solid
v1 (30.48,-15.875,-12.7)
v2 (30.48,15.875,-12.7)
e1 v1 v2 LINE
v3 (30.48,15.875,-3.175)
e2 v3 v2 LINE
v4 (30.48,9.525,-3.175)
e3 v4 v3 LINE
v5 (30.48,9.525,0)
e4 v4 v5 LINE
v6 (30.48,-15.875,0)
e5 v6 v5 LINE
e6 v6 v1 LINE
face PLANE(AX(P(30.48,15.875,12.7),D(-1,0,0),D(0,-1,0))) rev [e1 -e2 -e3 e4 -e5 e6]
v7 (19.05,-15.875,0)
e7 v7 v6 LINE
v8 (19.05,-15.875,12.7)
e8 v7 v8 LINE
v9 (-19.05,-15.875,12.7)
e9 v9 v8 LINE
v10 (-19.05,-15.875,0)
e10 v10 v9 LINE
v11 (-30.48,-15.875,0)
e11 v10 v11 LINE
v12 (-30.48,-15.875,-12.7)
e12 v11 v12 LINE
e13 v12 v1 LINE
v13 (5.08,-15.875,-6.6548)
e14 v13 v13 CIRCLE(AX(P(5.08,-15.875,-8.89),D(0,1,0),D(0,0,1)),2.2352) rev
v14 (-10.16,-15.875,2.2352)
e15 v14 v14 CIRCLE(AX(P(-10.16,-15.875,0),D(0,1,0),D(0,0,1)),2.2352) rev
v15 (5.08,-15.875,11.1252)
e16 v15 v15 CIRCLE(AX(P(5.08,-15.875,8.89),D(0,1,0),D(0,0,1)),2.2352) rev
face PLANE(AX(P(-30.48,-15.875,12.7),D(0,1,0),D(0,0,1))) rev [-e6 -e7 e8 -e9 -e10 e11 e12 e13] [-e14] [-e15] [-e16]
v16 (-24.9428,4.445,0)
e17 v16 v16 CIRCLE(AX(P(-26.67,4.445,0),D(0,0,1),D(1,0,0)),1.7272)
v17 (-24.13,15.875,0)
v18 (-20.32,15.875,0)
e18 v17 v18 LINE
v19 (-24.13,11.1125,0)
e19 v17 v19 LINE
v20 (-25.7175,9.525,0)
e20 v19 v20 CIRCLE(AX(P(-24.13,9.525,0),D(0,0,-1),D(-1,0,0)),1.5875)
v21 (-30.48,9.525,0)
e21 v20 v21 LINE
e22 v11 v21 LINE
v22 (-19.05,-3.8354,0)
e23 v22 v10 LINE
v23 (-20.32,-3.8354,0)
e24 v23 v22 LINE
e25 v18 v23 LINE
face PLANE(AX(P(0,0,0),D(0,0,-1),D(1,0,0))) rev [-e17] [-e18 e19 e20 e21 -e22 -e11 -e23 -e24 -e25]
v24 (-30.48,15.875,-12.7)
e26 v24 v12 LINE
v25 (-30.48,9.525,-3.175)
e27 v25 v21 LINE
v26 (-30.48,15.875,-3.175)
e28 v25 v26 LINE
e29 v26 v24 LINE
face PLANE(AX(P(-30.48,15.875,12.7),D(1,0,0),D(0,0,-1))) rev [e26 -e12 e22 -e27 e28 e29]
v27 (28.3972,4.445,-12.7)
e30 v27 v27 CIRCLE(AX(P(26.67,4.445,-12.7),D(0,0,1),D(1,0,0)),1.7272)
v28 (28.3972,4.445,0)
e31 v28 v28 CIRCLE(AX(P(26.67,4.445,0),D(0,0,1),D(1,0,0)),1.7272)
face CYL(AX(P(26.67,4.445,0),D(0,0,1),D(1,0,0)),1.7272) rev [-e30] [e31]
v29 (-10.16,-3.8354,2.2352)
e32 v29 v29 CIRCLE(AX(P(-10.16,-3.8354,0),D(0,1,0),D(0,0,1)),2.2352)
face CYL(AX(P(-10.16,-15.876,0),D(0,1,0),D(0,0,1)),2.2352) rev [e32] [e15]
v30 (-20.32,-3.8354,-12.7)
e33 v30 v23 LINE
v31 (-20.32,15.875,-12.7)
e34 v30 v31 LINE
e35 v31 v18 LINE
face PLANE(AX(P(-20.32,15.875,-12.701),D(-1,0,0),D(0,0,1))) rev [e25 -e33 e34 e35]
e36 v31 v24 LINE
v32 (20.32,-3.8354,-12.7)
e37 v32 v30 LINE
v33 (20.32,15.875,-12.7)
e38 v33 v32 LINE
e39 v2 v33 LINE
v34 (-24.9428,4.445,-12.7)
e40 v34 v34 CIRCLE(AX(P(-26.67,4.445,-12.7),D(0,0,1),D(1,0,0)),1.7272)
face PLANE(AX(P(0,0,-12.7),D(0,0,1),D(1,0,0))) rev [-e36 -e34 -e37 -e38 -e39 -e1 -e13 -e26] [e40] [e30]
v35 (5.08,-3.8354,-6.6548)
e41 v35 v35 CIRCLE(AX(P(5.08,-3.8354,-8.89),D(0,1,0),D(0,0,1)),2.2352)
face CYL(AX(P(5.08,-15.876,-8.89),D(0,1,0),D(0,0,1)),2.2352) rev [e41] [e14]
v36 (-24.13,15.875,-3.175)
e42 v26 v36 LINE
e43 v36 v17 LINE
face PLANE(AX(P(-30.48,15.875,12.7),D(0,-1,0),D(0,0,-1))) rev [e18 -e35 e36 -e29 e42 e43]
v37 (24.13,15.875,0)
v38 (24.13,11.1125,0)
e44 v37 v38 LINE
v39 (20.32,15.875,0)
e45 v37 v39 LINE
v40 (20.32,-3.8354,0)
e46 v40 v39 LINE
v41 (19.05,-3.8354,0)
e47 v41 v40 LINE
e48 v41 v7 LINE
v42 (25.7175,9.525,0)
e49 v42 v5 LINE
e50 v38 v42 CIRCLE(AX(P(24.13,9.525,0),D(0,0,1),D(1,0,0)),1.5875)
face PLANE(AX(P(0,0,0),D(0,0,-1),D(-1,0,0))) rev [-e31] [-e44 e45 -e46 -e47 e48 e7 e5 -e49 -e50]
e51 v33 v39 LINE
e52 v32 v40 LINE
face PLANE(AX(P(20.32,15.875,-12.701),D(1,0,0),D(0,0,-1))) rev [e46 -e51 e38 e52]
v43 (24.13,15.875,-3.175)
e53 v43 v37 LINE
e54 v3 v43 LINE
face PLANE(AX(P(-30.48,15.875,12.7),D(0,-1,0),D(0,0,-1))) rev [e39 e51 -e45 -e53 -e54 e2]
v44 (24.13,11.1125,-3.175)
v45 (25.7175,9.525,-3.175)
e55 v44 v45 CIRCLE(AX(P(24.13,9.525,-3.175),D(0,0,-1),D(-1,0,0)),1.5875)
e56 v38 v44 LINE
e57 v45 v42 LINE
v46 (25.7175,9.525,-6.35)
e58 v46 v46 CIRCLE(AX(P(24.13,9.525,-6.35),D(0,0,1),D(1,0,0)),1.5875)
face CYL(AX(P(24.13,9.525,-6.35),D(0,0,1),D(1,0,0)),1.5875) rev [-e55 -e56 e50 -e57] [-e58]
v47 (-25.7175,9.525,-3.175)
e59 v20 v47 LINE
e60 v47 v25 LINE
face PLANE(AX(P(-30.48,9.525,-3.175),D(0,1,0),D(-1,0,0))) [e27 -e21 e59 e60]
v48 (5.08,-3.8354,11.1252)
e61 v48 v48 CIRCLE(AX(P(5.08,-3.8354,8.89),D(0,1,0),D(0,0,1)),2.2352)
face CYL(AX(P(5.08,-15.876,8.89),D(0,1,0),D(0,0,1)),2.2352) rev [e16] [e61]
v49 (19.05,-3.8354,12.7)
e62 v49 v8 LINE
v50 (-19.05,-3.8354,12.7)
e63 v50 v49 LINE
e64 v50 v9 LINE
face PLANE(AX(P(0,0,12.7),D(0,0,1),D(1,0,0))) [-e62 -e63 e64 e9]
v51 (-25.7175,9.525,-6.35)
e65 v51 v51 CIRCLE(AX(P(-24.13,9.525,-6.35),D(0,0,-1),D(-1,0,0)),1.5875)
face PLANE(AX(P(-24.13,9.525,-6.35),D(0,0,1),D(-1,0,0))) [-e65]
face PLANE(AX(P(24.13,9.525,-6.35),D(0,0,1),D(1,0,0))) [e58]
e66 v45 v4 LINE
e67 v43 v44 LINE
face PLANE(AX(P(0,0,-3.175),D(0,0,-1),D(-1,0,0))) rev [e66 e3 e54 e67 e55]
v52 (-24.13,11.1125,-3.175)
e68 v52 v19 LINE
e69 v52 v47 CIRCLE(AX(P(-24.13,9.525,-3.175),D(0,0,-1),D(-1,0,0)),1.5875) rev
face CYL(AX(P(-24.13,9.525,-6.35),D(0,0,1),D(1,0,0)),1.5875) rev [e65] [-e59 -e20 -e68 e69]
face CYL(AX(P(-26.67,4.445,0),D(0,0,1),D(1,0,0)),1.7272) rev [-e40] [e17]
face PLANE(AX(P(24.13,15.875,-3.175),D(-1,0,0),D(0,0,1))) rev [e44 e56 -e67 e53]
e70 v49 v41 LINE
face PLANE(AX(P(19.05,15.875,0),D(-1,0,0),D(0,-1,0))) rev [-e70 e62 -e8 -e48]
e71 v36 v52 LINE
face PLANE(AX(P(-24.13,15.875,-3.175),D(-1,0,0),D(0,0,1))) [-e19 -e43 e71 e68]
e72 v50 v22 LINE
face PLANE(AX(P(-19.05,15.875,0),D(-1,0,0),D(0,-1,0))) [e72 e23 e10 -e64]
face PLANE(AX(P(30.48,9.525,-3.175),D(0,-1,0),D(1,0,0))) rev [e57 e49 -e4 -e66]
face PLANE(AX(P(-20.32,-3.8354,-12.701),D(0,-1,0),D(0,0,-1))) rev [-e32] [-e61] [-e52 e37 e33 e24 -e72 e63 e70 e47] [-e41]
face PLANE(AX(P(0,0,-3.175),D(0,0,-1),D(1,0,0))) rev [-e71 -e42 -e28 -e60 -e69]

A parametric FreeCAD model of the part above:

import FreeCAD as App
import Part
import Sketcher
from FreeCAD import Vector
Q = App.Units.Quantity

doc = App.newDocument("Part")
params = doc.addObject("Spreadsheet::Sheet", "Params")
for row, (alias, value) in enumerate([
    ("sketch1_width", "2.4 in"),
    ("sketch1_height", "1.25 in"),
    ("pad1_length", "1 in"),
    ("sketch2_width", "1.6 in"),
    ("sketch2_height", "0.776 in"),
    ("sketch3_width", "0.45 in"),
    ("sketch3_height", "1.25 in"),
    ("pocket2_length", "0.5 in"),
    ("sketch4_width", "0.25 in"),
    ("pocket3_length", "0.125 in"),
    ("sketch5_diameter", "0.125 in"),
    ("pocket4_length", "0.25 in"),
    ("sketch6_diameter", "0.136 in"),
    ("hole_diameter", "0.136 in"),
    ("hole_depth", "12.701 mm"),
    ("sketch7_diameter", "0.176 in"),
    ("sketch8_diameter", "0.176 in"),
    ("sketch9_diameter", "0.176 in"),
], start=1):
    params.set(f"A{row}", alias)
    params.set(f"B{row}", "=" + value)
    params.setAlias(f"B{row}", alias)

body = doc.addObject("PartDesign::Body", "Body")

# Sketch on XY plane
sketch1 = body.newObject("Sketcher::SketchObject", "Sketch")
sketch1.AttachmentSupport = (doc.getObject("XY_Plane"), [""])
sketch1.MapMode = "FlatFace"
sketch1.addGeometry(Part.LineSegment(Vector(-30, 16, 0), Vector(-30, -16, 0)), False)
sketch1.addGeometry(Part.LineSegment(Vector(-30, -16, 0), Vector(30, -16, 0)), False)
sketch1.addGeometry(Part.LineSegment(Vector(30, -16, 0), Vector(30, 16, 0)), False)
sketch1.addGeometry(Part.LineSegment(Vector(30, 16, 0), Vector(-30, 16, 0)), False)
sketch1.addConstraint(Sketcher.Constraint("Coincident", 0, 2, 1, 1))
sketch1.addConstraint(Sketcher.Constraint("Coincident", 1, 2, 2, 1))
sketch1.addConstraint(Sketcher.Constraint("Coincident", 2, 2, 3, 1))
sketch1.addConstraint(Sketcher.Constraint("Coincident", 3, 2, 0, 1))
sketch1.addConstraint(Sketcher.Constraint("Vertical", 0))
sketch1.addConstraint(Sketcher.Constraint("Horizontal", 1))
sketch1.addConstraint(Sketcher.Constraint("Vertical", 2))
sketch1.addConstraint(Sketcher.Constraint("Horizontal", 3))
sketch1.addConstraint(Sketcher.Constraint("Symmetric", 0, 2, 2, 2, -1, 1))
sketch1.addConstraint(Sketcher.Constraint("DistanceX", 1, 1, 1, 2, Q("2.4 in")))
sketch1.addConstraint(Sketcher.Constraint("DistanceY", 0, 2, 0, 1, Q("1.25 in")))
sketch1.setExpression("Constraints[9]", "Params.sketch1_width")
sketch1.setExpression("Constraints[10]", "Params.sketch1_height")
pad1 = body.newObject("PartDesign::Pad", "Pad")
pad1.Profile = sketch1
pad1.setExpression("Length", "Params.pad1_length")
pad1.Midplane = True

# Sketch on XY plane
sketch2 = body.newObject("Sketcher::SketchObject", "Sketch001")
sketch2.AttachmentSupport = (doc.getObject("XY_Plane"), [""])
sketch2.MapMode = "FlatFace"
sketch2.AttachmentOffset = App.Placement(Vector(0, 0, 0.5 * 25.4), App.Rotation())
sketch2.addGeometry(Part.LineSegment(Vector(-20, 16, 0), Vector(-20, -4, 0)), False)
sketch2.addGeometry(Part.LineSegment(Vector(-20, -4, 0), Vector(20, -4, 0)), False)
sketch2.addGeometry(Part.LineSegment(Vector(20, -4, 0), Vector(20, 16, 0)), False)
sketch2.addGeometry(Part.LineSegment(Vector(20, 16, 0), Vector(-20, 16, 0)), False)
sketch2.addConstraint(Sketcher.Constraint("Coincident", 0, 2, 1, 1))
sketch2.addConstraint(Sketcher.Constraint("Coincident", 1, 2, 2, 1))
sketch2.addConstraint(Sketcher.Constraint("Coincident", 2, 2, 3, 1))
sketch2.addConstraint(Sketcher.Constraint("Coincident", 3, 2, 0, 1))
sketch2.addConstraint(Sketcher.Constraint("Vertical", 0))
sketch2.addConstraint(Sketcher.Constraint("Horizontal", 1))
sketch2.addConstraint(Sketcher.Constraint("Vertical", 2))
sketch2.addConstraint(Sketcher.Constraint("Horizontal", 3))
sketch2.addConstraint(Sketcher.Constraint("DistanceX", 1, 1, 1, 2, Q("1.6 in")))
sketch2.addConstraint(Sketcher.Constraint("DistanceX", 0, 2, -1, 1, Q("0.8 in")))
sketch2.addConstraint(Sketcher.Constraint("DistanceY", 0, 2, 0, 1, Q("0.776 in")))
sketch2.addConstraint(Sketcher.Constraint("DistanceY", 0, 2, -1, 1, Q("0.151 in")))
sketch2.setExpression("Constraints[8]", "Params.sketch2_width")
sketch2.setExpression("Constraints[10]", "Params.sketch2_height")
pocket1 = body.newObject("PartDesign::Pocket", "Pocket")
pocket1.Profile = sketch2
pocket1.Type = "UpToFirst"

# Sketch on XY plane
sketch3 = body.newObject("Sketcher::SketchObject", "Sketch002")
sketch3.AttachmentSupport = (doc.getObject("XY_Plane"), [""])
sketch3.MapMode = "FlatFace"
sketch3.AttachmentOffset = App.Placement(Vector(0, 0, 0.5 * 25.4), App.Rotation())
sketch3.addGeometry(Part.LineSegment(Vector(19, 16, 0), Vector(19, -16, 0)), False)
sketch3.addGeometry(Part.LineSegment(Vector(19, -16, 0), Vector(30, -16, 0)), False)
sketch3.addGeometry(Part.LineSegment(Vector(30, -16, 0), Vector(30, 16, 0)), False)
sketch3.addGeometry(Part.LineSegment(Vector(30, 16, 0), Vector(19, 16, 0)), False)
sketch3.addConstraint(Sketcher.Constraint("Coincident", 0, 2, 1, 1))
sketch3.addConstraint(Sketcher.Constraint("Coincident", 1, 2, 2, 1))
sketch3.addConstraint(Sketcher.Constraint("Coincident", 2, 2, 3, 1))
sketch3.addConstraint(Sketcher.Constraint("Coincident", 3, 2, 0, 1))
sketch3.addConstraint(Sketcher.Constraint("Vertical", 0))
sketch3.addConstraint(Sketcher.Constraint("Horizontal", 1))
sketch3.addConstraint(Sketcher.Constraint("Vertical", 2))
sketch3.addConstraint(Sketcher.Constraint("Horizontal", 3))
sketch3.addConstraint(Sketcher.Constraint("DistanceX", 1, 1, 1, 2, Q("0.45 in")))
sketch3.addConstraint(Sketcher.Constraint("DistanceY", 0, 2, 0, 1, Q("1.25 in")))
sketch3.addConstraint(Sketcher.Constraint("DistanceX", -1, 1, 1, 2, Q("1.2 in")))
sketch3.addConstraint(Sketcher.Constraint("DistanceY", 0, 2, -1, 1, Q("0.625 in")))
sketch3.setExpression("Constraints[8]", "Params.sketch3_width")
sketch3.setExpression("Constraints[9]", "Params.sketch3_height")
pocket2 = body.newObject("PartDesign::Pocket", "Pocket001")
pocket2.Profile = sketch3
pocket2.setExpression("Length", "Params.pocket2_length")
doc.recompute()

mirrored = body.newObject("PartDesign::Mirrored", "Mirrored")
mirrored.Originals = [pocket2]
mirrored.MirrorPlane = (doc.getObject("YZ_Plane"), [""])
body.Tip = mirrored

# Sketch on XY plane
sketch4 = body.newObject("Sketcher::SketchObject", "Sketch003")
sketch4.AttachmentSupport = (doc.getObject("XY_Plane"), [""])
sketch4.MapMode = "FlatFace"
sketch4.addGeometry(Part.LineSegment(Vector(24, 16, 0), Vector(24, 10, 0)), False)
sketch4.addGeometry(Part.LineSegment(Vector(24, 10, 0), Vector(30, 10, 0)), False)
sketch4.addGeometry(Part.LineSegment(Vector(30, 10, 0), Vector(30, 16, 0)), False)
sketch4.addGeometry(Part.LineSegment(Vector(30, 16, 0), Vector(24, 16, 0)), False)
sketch4.addConstraint(Sketcher.Constraint("Coincident", 0, 2, 1, 1))
sketch4.addConstraint(Sketcher.Constraint("Coincident", 1, 2, 2, 1))
sketch4.addConstraint(Sketcher.Constraint("Coincident", 2, 2, 3, 1))
sketch4.addConstraint(Sketcher.Constraint("Coincident", 3, 2, 0, 1))
sketch4.addConstraint(Sketcher.Constraint("Vertical", 0))
sketch4.addConstraint(Sketcher.Constraint("Horizontal", 1))
sketch4.addConstraint(Sketcher.Constraint("Vertical", 2))
sketch4.addConstraint(Sketcher.Constraint("Horizontal", 3))
sketch4.addConstraint(Sketcher.Constraint("Equal", 3, 0))
sketch4.addConstraint(Sketcher.Constraint("DistanceX", 1, 1, 1, 2, Q("0.25 in")))
sketch4.addConstraint(Sketcher.Constraint("DistanceX", -1, 1, 1, 2, Q("1.2 in")))
sketch4.addConstraint(Sketcher.Constraint("DistanceY", -1, 1, 0, 2, Q("0.375 in")))
sketch4.setExpression("Constraints[9]", "Params.sketch4_width")
pocket3 = body.newObject("PartDesign::Pocket", "Pocket002")
pocket3.Profile = sketch4
pocket3.setExpression("Length", "Params.pocket3_length")

# Sketch on XY plane
sketch5 = body.newObject("Sketcher::SketchObject", "Sketch004")
sketch5.AttachmentSupport = (doc.getObject("XY_Plane"), [""])
sketch5.MapMode = "FlatFace"
sketch5.addGeometry(Part.Circle(Vector(24.1, 9.5, 0), Vector(0, 0, 1), 1.6), False)
sketch5.addConstraint(Sketcher.Constraint("Diameter", 0, Q("0.125 in")))
sketch5.addConstraint(Sketcher.Constraint("DistanceX", -1, 1, 0, 3, Q("0.95 in")))
sketch5.addConstraint(Sketcher.Constraint("DistanceY", -1, 1, 0, 3, Q("0.375 in")))
sketch5.setExpression("Constraints[0]", "Params.sketch5_diameter")
pocket4 = body.newObject("PartDesign::Pocket", "Pocket003")
pocket4.Profile = sketch5
pocket4.setExpression("Length", "Params.pocket4_length")

# Sketch on XY plane
sketch6 = body.newObject("Sketcher::SketchObject", "Sketch005")
sketch6.AttachmentSupport = (doc.getObject("XY_Plane"), [""])
sketch6.MapMode = "FlatFace"
sketch6.addGeometry(Part.Circle(Vector(26.7, 4.4, 0), Vector(0, 0, 1), 1.7), False)
sketch6.addConstraint(Sketcher.Constraint("Diameter", 0, Q("0.136 in")))
sketch6.addConstraint(Sketcher.Constraint("DistanceX", -1, 1, 0, 3, Q("1.05 in")))
sketch6.addConstraint(Sketcher.Constraint("DistanceY", -1, 1, 0, 3, Q("0.175 in")))
sketch6.setExpression("Constraints[0]", "Params.sketch6_diameter")
doc.recompute()
hole = body.newObject("PartDesign::Hole", "Hole")
hole.Profile = sketch6
hole.ThreadType = "None"
hole.setExpression("Diameter", "Params.hole_diameter")
hole.DepthType = "Dimension"
hole.setExpression("Depth", "Params.hole_depth")
hole.DrillPoint = "Flat"

# Sketch on XZ plane
sketch7 = body.newObject("Sketcher::SketchObject", "Sketch006")
sketch7.AttachmentSupport = (doc.getObject("XZ_Plane"), [""])
sketch7.MapMode = "FlatFace"
sketch7.AttachmentOffset = App.Placement(Vector(0, 0, 0.151 * 25.4), App.Rotation())
sketch7.addGeometry(Part.Circle(Vector(5.1, -8.9, 0), Vector(0, 0, 1), 2.2), False)
sketch7.addConstraint(Sketcher.Constraint("Diameter", 0, Q("0.176 in")))
sketch7.addConstraint(Sketcher.Constraint("DistanceX", -1, 1, 0, 3, Q("0.2 in")))
sketch7.addConstraint(Sketcher.Constraint("DistanceY", 0, 3, -1, 1, Q("0.35 in")))
sketch7.setExpression("Constraints[0]", "Params.sketch7_diameter")
pocket5 = body.newObject("PartDesign::Pocket", "Pocket004")
pocket5.Profile = sketch7
pocket5.Type = "UpToFirst"
pocket5.Reversed = True

# Sketch on XZ plane
sketch8 = body.newObject("Sketcher::SketchObject", "Sketch007")
sketch8.AttachmentSupport = (doc.getObject("XZ_Plane"), [""])
sketch8.MapMode = "FlatFace"
sketch8.AttachmentOffset = App.Placement(Vector(0, 0, 0.151 * 25.4), App.Rotation())
sketch8.addGeometry(Part.Circle(Vector(5.1, 8.9, 0), Vector(0, 0, 1), 2.2), False)
sketch8.addConstraint(Sketcher.Constraint("Diameter", 0, Q("0.176 in")))
sketch8.addConstraint(Sketcher.Constraint("DistanceX", -1, 1, 0, 3, Q("0.2 in")))
sketch8.addConstraint(Sketcher.Constraint("DistanceY", -1, 1, 0, 3, Q("0.35 in")))
sketch8.setExpression("Constraints[0]", "Params.sketch8_diameter")
pocket6 = body.newObject("PartDesign::Pocket", "Pocket005")
pocket6.Profile = sketch8
pocket6.Type = "UpToFirst"
pocket6.Reversed = True

# Sketch on XZ plane
sketch9 = body.newObject("Sketcher::SketchObject", "Sketch008")
sketch9.AttachmentSupport = (doc.getObject("XZ_Plane"), [""])
sketch9.MapMode = "FlatFace"
sketch9.AttachmentOffset = App.Placement(Vector(0, 0, 0.151 * 25.4), App.Rotation())
sketch9.addGeometry(Part.Circle(Vector(-10.2, 0, 0), Vector(0, 0, 1), 2.2), False)
sketch9.addConstraint(Sketcher.Constraint("PointOnObject", 0, 3, -1))
sketch9.addConstraint(Sketcher.Constraint("Diameter", 0, Q("0.176 in")))
sketch9.addConstraint(Sketcher.Constraint("DistanceX", 0, 3, -1, 1, Q("0.4 in")))
sketch9.setExpression("Constraints[1]", "Params.sketch9_diameter")
pocket7 = body.newObject("PartDesign::Pocket", "Pocket006")
pocket7.Profile = sketch9
pocket7.Type = "UpToFirst"
pocket7.Reversed = True
doc.recompute()

mirrored2 = body.newObject("PartDesign::Mirrored", "Mirrored001")
mirrored2.Originals = [pocket3, pocket4, hole]
mirrored2.MirrorPlane = (doc.getObject("YZ_Plane"), [""])
body.Tip = mirrored2

doc.recompute()
